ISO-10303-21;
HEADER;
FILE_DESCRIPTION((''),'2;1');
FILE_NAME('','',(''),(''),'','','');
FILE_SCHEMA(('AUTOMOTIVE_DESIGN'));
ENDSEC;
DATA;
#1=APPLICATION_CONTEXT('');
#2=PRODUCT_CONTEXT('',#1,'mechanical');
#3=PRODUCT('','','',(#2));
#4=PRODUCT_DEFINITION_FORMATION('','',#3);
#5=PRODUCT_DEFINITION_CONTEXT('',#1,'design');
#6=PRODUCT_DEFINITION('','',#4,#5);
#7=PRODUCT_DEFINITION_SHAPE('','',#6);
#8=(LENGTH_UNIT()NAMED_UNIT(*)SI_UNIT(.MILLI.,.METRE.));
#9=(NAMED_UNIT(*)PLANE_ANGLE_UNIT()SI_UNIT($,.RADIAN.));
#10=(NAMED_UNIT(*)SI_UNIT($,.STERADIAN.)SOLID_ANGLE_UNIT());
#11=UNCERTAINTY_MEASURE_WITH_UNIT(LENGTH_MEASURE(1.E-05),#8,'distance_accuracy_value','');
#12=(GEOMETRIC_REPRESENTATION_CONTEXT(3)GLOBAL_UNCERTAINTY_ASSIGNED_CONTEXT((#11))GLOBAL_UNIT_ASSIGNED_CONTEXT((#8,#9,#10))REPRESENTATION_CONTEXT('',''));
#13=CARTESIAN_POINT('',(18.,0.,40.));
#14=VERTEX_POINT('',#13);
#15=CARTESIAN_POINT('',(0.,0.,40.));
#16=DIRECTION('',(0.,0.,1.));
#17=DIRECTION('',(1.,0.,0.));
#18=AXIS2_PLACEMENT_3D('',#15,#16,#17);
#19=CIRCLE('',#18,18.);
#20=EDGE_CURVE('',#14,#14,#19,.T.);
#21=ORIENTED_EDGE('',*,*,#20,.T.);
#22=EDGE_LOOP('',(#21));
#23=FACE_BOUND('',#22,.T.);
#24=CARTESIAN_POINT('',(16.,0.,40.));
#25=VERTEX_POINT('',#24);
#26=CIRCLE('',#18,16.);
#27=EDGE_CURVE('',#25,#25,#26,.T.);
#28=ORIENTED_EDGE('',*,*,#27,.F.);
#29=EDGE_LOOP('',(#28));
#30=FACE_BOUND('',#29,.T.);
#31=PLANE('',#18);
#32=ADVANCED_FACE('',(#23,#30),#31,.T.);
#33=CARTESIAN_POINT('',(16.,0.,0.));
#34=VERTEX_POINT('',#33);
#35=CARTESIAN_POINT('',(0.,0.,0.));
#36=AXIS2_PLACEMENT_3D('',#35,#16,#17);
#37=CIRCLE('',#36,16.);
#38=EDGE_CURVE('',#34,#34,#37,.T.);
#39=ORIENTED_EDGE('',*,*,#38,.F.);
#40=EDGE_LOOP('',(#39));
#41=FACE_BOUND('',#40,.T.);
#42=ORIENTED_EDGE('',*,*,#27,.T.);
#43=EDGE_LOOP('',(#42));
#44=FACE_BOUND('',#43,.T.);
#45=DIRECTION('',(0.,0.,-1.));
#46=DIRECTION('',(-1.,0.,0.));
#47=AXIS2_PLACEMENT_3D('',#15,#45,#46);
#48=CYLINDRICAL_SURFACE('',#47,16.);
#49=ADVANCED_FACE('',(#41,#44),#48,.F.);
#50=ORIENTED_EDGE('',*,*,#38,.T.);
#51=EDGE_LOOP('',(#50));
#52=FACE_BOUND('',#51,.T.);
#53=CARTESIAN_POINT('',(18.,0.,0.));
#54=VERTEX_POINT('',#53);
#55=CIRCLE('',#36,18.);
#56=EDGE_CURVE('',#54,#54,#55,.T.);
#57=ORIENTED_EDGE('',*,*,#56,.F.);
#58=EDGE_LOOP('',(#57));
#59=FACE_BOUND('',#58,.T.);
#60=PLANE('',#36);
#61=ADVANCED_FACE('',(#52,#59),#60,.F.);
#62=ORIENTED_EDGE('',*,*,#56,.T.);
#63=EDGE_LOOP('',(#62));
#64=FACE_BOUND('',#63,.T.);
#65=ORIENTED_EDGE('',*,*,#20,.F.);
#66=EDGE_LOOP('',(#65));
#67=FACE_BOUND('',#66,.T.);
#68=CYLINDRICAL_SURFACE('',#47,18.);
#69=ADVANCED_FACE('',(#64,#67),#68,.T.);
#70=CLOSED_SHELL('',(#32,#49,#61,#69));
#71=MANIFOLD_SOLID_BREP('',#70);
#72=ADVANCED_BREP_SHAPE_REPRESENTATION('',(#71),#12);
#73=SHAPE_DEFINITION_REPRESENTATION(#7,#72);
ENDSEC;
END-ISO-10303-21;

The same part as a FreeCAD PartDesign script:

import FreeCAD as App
import Part
import Sketcher

doc = App.newDocument("Part")
body = doc.addObject("PartDesign::Body", "Body")

# Sketch on XY plane
sketch1 = body.newObject("Sketcher::SketchObject", "Sketch")
sketch1.AttachmentSupport = (doc.getObject("XY_Plane"), [""])
sketch1.MapMode = "FlatFace"
sketch1.addGeometry([
    Part.Circle(App.Vector(0, 0, 0), App.Vector(0, 0, 1), 18),
    Part.Circle(App.Vector(0, 0, 0), App.Vector(0, 0, 1), 16),
], False)
sketch1.addConstraint([
    Sketcher.Constraint("Coincident", 0, 3, -1, 1),
    Sketcher.Constraint("Coincident", 1, 3, -1, 1),
    Sketcher.Constraint("Diameter", 0, 36.0),
    Sketcher.Constraint("Diameter", 1, 32.0),
])
pad1 = body.newObject("PartDesign::Pad", "Pad")
pad1.Profile = sketch1
pad1.Length = 40

doc.recompute()
